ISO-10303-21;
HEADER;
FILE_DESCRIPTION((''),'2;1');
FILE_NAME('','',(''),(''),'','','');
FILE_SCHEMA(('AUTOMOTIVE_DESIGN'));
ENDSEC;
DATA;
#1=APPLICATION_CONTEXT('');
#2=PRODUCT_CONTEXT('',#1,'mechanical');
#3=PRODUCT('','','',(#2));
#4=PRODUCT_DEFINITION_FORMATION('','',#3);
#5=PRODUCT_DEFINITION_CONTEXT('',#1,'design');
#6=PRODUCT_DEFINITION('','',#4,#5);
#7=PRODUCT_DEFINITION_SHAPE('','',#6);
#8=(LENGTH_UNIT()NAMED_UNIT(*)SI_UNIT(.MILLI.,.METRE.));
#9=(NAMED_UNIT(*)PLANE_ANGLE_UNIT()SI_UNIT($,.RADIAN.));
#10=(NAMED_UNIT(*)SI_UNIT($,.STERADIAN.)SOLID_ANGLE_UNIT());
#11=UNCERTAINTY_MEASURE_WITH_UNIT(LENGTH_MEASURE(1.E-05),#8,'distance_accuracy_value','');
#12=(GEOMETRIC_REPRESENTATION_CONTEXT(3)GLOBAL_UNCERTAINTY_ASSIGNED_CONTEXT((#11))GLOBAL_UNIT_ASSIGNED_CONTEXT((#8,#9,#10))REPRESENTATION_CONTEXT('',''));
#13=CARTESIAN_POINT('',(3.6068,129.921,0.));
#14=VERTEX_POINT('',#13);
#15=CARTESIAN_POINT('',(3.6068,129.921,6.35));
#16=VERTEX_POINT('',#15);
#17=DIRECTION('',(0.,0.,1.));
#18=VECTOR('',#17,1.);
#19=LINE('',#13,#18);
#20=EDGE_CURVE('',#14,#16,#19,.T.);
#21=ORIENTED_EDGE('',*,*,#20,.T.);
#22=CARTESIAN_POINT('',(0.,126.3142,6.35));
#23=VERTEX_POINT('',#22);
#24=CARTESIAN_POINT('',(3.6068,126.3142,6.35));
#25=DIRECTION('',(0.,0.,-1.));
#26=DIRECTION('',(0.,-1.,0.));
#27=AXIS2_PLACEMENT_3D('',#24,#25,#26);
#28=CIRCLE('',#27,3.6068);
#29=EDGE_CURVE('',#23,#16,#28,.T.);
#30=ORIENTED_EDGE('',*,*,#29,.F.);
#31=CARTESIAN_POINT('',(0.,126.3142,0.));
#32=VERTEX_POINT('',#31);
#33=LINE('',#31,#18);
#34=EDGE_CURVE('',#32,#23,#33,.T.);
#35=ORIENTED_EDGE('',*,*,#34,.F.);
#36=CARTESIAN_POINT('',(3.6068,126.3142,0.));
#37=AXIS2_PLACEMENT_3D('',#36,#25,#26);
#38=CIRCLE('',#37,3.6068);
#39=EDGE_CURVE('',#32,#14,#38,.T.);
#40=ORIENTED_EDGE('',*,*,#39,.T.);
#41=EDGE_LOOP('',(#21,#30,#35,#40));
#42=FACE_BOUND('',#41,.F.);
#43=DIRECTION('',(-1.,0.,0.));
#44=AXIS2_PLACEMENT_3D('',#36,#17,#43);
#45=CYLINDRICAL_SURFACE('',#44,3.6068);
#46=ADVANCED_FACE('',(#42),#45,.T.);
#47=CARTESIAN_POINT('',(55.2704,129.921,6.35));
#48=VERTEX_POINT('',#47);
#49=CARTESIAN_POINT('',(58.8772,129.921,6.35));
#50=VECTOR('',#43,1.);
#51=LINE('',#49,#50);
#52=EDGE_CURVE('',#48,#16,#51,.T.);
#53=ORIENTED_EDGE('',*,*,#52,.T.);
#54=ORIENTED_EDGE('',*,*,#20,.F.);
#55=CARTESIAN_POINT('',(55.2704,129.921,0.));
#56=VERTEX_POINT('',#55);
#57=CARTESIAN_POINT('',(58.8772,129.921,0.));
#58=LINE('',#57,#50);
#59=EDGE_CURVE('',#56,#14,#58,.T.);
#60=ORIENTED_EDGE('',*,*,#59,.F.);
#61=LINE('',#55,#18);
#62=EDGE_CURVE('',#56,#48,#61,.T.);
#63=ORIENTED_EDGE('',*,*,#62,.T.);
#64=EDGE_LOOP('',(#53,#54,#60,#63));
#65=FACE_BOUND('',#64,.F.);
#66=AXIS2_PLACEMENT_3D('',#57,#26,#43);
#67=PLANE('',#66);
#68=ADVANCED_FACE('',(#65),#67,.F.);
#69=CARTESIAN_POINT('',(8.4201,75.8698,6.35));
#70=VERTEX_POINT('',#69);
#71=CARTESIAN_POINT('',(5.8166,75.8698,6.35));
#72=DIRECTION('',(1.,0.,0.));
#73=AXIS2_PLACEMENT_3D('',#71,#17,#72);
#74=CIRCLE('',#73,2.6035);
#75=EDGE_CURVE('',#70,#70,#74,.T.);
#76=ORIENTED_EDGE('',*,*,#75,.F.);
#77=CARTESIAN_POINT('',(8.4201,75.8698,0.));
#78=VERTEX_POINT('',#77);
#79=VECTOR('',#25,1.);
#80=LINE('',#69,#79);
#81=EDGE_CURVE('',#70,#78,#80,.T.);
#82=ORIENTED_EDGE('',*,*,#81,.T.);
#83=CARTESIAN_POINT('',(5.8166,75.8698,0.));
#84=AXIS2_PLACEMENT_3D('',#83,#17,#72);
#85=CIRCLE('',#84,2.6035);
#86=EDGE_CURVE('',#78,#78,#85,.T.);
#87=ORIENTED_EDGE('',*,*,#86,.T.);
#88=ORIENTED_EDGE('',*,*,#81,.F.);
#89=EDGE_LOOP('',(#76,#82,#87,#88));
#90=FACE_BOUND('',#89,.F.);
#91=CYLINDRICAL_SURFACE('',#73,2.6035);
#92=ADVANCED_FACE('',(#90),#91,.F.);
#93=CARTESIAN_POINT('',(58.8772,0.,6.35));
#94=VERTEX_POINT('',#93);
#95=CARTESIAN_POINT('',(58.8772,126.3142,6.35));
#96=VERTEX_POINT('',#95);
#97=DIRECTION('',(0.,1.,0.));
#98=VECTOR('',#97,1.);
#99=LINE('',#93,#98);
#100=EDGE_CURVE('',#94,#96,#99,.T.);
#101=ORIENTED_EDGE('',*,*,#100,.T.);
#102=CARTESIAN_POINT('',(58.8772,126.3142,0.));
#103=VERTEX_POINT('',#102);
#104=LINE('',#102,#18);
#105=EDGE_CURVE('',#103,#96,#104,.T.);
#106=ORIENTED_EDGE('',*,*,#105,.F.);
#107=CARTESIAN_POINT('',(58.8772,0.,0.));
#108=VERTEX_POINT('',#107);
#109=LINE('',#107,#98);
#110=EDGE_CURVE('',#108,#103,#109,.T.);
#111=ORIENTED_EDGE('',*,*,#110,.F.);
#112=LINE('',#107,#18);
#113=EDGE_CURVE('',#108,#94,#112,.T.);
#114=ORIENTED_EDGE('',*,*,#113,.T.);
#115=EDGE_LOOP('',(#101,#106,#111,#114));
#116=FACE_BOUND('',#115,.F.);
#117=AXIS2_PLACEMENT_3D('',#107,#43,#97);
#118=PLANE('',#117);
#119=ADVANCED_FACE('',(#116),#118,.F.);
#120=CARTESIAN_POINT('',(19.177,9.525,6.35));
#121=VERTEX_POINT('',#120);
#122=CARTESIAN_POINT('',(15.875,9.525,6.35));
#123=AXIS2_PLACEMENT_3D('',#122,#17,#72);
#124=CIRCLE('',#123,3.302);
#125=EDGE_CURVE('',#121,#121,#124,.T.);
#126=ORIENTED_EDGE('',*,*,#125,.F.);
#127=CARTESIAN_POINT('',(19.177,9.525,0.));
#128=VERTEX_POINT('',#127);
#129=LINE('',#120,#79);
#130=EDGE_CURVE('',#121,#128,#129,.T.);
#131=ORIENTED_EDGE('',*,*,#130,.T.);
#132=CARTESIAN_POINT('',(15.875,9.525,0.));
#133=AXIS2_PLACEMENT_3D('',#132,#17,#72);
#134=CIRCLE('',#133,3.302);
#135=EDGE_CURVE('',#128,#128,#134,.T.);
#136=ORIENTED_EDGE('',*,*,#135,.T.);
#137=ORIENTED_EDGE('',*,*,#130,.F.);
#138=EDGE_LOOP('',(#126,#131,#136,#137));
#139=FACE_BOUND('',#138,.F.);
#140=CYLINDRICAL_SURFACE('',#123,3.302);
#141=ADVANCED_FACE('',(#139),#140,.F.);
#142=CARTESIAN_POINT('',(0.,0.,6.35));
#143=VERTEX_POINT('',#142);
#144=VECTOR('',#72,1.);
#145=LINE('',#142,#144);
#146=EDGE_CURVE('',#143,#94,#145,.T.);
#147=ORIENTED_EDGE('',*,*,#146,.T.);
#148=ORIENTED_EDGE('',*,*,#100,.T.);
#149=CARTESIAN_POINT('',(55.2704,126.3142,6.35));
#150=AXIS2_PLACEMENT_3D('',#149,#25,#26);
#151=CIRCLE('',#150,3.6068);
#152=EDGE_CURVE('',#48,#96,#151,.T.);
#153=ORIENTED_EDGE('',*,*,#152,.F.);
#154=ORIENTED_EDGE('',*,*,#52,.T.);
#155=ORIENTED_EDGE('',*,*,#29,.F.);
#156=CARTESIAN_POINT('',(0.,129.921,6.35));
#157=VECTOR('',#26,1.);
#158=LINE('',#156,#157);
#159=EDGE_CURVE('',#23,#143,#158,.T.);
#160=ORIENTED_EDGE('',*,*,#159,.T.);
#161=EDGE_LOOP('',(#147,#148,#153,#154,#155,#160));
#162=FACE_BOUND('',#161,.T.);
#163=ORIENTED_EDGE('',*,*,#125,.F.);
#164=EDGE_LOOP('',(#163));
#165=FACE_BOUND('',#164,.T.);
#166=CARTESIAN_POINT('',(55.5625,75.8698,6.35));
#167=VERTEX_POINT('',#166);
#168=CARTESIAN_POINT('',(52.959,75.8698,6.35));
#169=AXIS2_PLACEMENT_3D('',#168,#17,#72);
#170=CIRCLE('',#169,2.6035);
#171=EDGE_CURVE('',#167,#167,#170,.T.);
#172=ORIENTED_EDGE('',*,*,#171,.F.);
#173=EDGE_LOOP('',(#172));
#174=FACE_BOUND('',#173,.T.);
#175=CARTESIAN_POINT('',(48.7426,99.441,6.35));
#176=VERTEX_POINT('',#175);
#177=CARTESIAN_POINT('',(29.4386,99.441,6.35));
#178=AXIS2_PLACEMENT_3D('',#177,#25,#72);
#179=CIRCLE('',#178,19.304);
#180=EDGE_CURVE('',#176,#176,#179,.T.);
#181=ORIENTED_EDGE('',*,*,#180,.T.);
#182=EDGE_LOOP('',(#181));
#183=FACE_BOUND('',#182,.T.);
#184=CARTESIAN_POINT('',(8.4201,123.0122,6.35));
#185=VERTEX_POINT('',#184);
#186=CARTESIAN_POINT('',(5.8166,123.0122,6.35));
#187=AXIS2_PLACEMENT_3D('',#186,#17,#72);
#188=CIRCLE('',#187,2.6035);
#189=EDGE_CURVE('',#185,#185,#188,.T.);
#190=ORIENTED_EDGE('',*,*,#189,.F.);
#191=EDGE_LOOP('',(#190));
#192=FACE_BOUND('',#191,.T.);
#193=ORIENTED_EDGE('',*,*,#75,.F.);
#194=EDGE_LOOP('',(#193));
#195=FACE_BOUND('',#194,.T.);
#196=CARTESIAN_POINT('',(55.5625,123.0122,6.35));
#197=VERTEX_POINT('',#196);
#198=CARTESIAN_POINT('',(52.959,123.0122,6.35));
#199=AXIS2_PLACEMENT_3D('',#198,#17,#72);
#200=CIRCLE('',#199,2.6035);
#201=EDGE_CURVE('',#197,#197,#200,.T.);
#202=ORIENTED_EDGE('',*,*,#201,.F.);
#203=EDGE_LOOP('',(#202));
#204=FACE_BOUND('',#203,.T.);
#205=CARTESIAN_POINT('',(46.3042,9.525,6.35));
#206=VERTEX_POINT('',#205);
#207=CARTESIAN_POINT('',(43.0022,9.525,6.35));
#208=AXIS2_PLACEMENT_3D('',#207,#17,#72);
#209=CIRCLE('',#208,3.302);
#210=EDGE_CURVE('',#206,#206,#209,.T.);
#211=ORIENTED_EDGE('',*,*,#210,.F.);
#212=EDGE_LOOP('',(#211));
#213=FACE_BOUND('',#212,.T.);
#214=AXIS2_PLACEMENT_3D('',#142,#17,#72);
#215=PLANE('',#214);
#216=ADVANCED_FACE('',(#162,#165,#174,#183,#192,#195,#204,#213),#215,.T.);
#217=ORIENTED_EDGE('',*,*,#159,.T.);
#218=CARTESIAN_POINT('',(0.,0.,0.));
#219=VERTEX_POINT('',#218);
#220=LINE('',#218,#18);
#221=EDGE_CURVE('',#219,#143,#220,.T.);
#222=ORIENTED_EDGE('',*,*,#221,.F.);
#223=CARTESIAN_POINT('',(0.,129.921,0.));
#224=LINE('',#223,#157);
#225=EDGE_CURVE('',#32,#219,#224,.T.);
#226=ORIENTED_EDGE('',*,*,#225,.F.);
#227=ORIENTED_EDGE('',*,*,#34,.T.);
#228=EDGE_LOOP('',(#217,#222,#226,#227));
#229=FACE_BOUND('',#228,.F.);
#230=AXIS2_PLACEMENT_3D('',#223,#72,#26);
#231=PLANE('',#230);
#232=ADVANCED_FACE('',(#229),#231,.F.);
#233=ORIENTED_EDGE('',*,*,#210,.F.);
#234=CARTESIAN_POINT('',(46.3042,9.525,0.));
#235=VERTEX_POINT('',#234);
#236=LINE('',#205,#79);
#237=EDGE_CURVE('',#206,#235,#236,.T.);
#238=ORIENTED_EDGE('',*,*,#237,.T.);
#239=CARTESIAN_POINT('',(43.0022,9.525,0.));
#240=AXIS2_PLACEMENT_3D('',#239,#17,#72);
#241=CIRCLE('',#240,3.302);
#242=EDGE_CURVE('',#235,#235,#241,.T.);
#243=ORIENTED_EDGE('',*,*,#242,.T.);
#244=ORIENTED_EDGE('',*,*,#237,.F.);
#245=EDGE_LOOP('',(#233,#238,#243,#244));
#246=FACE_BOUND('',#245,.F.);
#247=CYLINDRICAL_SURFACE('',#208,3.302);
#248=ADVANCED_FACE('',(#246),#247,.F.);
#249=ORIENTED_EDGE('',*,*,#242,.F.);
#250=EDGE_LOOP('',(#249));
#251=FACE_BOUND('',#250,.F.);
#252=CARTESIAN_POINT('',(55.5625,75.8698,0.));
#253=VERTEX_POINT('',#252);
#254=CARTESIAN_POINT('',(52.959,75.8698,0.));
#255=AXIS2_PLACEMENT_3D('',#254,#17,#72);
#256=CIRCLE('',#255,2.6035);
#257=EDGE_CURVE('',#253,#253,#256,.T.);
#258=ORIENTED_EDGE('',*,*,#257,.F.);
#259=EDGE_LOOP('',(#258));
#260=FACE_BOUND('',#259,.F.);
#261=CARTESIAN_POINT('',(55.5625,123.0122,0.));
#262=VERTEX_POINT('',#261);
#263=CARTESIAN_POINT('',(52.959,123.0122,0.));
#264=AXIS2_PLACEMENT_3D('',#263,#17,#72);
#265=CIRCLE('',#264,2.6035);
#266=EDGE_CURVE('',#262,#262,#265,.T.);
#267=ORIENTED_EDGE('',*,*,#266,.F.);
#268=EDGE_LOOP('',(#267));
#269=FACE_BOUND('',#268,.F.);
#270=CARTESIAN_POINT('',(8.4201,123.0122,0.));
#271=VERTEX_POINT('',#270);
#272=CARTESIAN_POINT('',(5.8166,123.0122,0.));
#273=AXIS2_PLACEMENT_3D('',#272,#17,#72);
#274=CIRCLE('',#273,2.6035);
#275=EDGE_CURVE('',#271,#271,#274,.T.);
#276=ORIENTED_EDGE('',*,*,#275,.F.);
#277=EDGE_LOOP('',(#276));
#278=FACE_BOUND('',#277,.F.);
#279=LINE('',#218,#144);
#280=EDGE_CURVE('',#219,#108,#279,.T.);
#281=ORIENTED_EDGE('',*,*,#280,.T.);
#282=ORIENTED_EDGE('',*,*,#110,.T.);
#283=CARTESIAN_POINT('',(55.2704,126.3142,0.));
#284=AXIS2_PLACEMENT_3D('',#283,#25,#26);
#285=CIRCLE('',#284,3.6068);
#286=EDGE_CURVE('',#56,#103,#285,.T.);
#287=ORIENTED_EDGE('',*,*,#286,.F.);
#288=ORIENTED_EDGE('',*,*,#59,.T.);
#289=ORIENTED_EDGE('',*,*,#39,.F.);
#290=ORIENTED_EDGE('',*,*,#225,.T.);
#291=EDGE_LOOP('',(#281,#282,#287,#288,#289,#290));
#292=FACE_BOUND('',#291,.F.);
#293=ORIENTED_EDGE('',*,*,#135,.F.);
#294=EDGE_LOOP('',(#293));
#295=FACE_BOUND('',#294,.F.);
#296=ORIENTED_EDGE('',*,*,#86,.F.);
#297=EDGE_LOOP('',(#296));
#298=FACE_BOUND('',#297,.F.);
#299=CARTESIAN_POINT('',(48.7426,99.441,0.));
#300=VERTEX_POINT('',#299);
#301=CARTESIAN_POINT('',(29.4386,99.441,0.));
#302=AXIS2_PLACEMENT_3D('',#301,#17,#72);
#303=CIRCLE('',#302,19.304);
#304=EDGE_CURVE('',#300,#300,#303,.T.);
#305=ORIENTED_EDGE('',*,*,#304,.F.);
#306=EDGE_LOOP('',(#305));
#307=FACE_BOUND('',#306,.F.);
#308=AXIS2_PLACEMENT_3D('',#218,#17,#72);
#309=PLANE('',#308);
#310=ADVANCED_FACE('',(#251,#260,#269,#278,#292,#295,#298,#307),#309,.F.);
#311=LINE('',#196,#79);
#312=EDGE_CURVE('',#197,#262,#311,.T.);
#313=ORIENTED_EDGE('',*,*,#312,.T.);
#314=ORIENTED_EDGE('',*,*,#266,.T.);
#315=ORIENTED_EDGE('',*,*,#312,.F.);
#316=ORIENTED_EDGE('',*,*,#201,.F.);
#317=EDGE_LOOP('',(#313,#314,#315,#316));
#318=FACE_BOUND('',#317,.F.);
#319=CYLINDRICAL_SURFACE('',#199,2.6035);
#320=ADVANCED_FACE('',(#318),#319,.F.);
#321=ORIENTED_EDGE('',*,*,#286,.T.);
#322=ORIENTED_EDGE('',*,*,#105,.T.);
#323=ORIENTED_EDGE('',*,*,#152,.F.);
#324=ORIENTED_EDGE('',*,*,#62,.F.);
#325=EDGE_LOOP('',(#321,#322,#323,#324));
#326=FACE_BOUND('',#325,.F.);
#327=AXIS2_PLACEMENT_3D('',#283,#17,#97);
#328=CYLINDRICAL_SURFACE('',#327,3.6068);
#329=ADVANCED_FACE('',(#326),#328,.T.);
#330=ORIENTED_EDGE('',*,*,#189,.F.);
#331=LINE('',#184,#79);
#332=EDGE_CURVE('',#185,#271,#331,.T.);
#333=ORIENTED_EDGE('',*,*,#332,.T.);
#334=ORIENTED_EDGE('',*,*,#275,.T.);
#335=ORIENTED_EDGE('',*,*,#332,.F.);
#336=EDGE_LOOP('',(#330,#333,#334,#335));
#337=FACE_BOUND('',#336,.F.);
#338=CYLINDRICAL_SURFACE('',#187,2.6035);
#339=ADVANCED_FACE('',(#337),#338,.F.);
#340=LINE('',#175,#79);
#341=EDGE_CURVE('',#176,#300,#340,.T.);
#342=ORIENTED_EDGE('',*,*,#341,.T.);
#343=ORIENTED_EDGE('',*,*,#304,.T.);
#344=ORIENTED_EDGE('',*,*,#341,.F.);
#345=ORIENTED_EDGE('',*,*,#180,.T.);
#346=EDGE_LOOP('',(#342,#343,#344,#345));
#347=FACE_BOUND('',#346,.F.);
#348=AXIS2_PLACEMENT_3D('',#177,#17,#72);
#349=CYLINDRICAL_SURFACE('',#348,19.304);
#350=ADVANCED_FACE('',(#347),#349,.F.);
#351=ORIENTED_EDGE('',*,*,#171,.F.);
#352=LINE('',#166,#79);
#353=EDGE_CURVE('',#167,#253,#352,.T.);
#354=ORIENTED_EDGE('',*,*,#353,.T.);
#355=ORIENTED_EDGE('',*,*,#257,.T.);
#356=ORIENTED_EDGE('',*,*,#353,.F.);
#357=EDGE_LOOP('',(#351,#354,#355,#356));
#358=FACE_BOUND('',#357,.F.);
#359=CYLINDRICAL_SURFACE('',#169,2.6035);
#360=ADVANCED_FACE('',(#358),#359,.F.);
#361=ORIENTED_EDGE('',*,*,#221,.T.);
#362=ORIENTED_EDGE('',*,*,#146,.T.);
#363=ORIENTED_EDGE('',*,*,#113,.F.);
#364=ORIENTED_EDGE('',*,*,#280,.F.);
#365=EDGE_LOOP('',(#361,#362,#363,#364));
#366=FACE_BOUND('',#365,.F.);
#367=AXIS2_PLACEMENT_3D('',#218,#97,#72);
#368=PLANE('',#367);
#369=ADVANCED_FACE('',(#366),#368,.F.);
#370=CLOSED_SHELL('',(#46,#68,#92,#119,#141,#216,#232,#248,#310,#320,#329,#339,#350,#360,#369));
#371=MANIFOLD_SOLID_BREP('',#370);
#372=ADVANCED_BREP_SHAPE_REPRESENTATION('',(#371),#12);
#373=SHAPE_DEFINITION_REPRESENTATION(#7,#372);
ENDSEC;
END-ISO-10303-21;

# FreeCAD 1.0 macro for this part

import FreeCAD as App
import Part
import Sketcher
Q = App.Units.Quantity


def edges_at(feature, points):
    """Names of the edges that pass closest to the given points."""
    edges = feature.Shape.Edges
    near = lambda p: min(range(len(edges)), key=lambda i: edges[i].distToShape(Part.Vertex(*p))[0])
    return sorted({f"Edge{near(p) + 1}" for p in points})

doc = App.newDocument("Part")
body = doc.addObject("PartDesign::Body", "Body")

# Sketch on XY plane
sketch1 = doc.addObject("Sketcher::SketchObject", "Sketch")
body.addObject(sketch1)
sketch1.AttachmentSupport = (doc.XY_Plane, [""])
sketch1.MapMode = "FlatFace"
sketch1.addGeometry([
    Part.LineSegment(App.Vector(0, 130, 0), App.Vector(0, 0, 0)),
    Part.LineSegment(App.Vector(0, 0, 0), App.Vector(59, 0, 0)),
    Part.LineSegment(App.Vector(59, 0, 0), App.Vector(59, 130, 0)),
    Part.LineSegment(App.Vector(59, 130, 0), App.Vector(0, 130, 0)),
], False)
sketch1.addConstraint([
    Sketcher.Constraint("Coincident", 0, 2, 1, 1),
    Sketcher.Constraint("Coincident", 1, 2, 2, 1),
    Sketcher.Constraint("Coincident", 2, 2, 3, 1),
    Sketcher.Constraint("Coincident", 3, 2, 0, 1),
    Sketcher.Constraint("Vertical", 0),
    Sketcher.Constraint("Horizontal", 1),
    Sketcher.Constraint("Vertical", 2),
    Sketcher.Constraint("Horizontal", 3),
    Sketcher.Constraint("Coincident", 0, 2, -1, 1),
    Sketcher.Constraint("DistanceX", 1, 1, 1, 2, Q("2.318 in")),
    Sketcher.Constraint("DistanceY", 0, 2, 0, 1, Q("5.115 in")),
])
pad1 = doc.addObject("PartDesign::Pad", "Pad")
body.addObject(pad1)
pad1.Profile = sketch1
pad1.Length = Q("0.25 in")
doc.recompute()

fillet = doc.addObject("PartDesign::Fillet", "Fillet")
body.addObject(fillet)
fillet.Base = (pad1, edges_at(pad1, [(0, 129.921, 3.175), (58.877, 129.921, 3.175)]))
fillet.Radius = Q("0.142 in")

# Sketch on XY plane
sketch2 = doc.addObject("Sketcher::SketchObject", "Sketch001")
body.addObject(sketch2)
sketch2.AttachmentSupport = (doc.XY_Plane, [""])
sketch2.MapMode = "FlatFace"
sketch2.AttachmentOffset = App.Placement(App.Vector(0, 0, 0.25 * 25.4), App.Rotation())
sketch2.addGeometry(Part.Circle(App.Vector(29, 99, 0), App.Vector(0, 0, 1), 19), False)
sketch2.addConstraint([
    Sketcher.Constraint("Diameter", 0, Q("1.52 in")),
    Sketcher.Constraint("DistanceY", -1, 1, 0, 3, Q("3.915 in")),
    Sketcher.Constraint("DistanceX", -1, 1, 0, 3, Q("1.159 in")),
])
pocket1 = doc.addObject("PartDesign::Pocket", "Pocket")
body.addObject(pocket1)
pocket1.Profile = sketch2
pocket1.Length = Q("0.25 in")

# Sketch on XY plane
sketch3 = doc.addObject("Sketcher::SketchObject", "Sketch002")
body.addObject(sketch3)
sketch3.AttachmentSupport = (doc.XY_Plane, [""])
sketch3.MapMode = "FlatFace"
sketch3.AttachmentOffset = App.Placement(App.Vector(0, 0, 0.25 * 25.4), App.Rotation())
sketch3.addGeometry([
    Part.Circle(App.Vector(5.8, 123, 0), App.Vector(0, 0, 1), 2.6),
    Part.Circle(App.Vector(5.8, 75.9, 0), App.Vector(0, 0, 1), 2.6),
    Part.Circle(App.Vector(53, 123, 0), App.Vector(0, 0, 1), 2.6),
    Part.Circle(App.Vector(53, 75.9, 0), App.Vector(0, 0, 1), 2.6),
], False)
sketch3.addConstraint([
    Sketcher.Constraint("Equal", 0, 1),
    Sketcher.Constraint("Equal", 1, 2),
    Sketcher.Constraint("Equal", 2, 3),
    Sketcher.Constraint("Horizontal", 0, 3, 2, 3),
    Sketcher.Constraint("Horizontal", 1, 3, 3, 3),
    Sketcher.Constraint("Vertical", 0, 3, 1, 3),
    Sketcher.Constraint("Vertical", 2, 3, 3, 3),
    Sketcher.Constraint("Diameter", 0, Q("0.205 in")),
    Sketcher.Constraint("DistanceX", -1, 1, 0, 3, Q("0.229 in")),
    Sketcher.Constraint("DistanceY", -1, 1, 0, 3, Q("4.843 in")),
    Sketcher.Constraint("DistanceY", 1, 3, 0, 3, Q("1.856 in")),
    Sketcher.Constraint("DistanceX", 0, 3, 2, 3, Q("1.856 in")),
])
pocket2 = doc.addObject("PartDesign::Pocket", "Pocket001")
body.addObject(pocket2)
pocket2.Profile = sketch3
pocket2.Length = Q("0.25 in")

# Sketch on XY plane
sketch4 = doc.addObject("Sketcher::SketchObject", "Sketch003")
body.addObject(sketch4)
sketch4.AttachmentSupport = (doc.XY_Plane, [""])
sketch4.MapMode = "FlatFace"
sketch4.AttachmentOffset = App.Placement(App.Vector(0, 0, 0.25 * 25.4), App.Rotation())
sketch4.addGeometry([
    Part.Circle(App.Vector(15.9, 9.5, 0), App.Vector(0, 0, 1), 3.3),
    Part.Circle(App.Vector(43, 9.5, 0), App.Vector(0, 0, 1), 3.3),
], False)
sketch4.addConstraint([
    Sketcher.Constraint("Equal", 0, 1),
    Sketcher.Constraint("Horizontal", 0, 3, 1, 3),
    Sketcher.Constraint("Diameter", 0, Q("0.26 in")),
    Sketcher.Constraint("DistanceX", -1, 1, 0, 3, Q("0.625 in")),
    Sketcher.Constraint("DistanceY", -1, 1, 0, 3, Q("0.375 in")),
    Sketcher.Constraint("DistanceX", -1, 1, 1, 3, Q("1.693 in")),
])
pocket3 = doc.addObject("PartDesign::Pocket", "Pocket002")
body.addObject(pocket3)
pocket3.Profile = sketch4
pocket3.Length = Q("1 in")

doc.recompute()
